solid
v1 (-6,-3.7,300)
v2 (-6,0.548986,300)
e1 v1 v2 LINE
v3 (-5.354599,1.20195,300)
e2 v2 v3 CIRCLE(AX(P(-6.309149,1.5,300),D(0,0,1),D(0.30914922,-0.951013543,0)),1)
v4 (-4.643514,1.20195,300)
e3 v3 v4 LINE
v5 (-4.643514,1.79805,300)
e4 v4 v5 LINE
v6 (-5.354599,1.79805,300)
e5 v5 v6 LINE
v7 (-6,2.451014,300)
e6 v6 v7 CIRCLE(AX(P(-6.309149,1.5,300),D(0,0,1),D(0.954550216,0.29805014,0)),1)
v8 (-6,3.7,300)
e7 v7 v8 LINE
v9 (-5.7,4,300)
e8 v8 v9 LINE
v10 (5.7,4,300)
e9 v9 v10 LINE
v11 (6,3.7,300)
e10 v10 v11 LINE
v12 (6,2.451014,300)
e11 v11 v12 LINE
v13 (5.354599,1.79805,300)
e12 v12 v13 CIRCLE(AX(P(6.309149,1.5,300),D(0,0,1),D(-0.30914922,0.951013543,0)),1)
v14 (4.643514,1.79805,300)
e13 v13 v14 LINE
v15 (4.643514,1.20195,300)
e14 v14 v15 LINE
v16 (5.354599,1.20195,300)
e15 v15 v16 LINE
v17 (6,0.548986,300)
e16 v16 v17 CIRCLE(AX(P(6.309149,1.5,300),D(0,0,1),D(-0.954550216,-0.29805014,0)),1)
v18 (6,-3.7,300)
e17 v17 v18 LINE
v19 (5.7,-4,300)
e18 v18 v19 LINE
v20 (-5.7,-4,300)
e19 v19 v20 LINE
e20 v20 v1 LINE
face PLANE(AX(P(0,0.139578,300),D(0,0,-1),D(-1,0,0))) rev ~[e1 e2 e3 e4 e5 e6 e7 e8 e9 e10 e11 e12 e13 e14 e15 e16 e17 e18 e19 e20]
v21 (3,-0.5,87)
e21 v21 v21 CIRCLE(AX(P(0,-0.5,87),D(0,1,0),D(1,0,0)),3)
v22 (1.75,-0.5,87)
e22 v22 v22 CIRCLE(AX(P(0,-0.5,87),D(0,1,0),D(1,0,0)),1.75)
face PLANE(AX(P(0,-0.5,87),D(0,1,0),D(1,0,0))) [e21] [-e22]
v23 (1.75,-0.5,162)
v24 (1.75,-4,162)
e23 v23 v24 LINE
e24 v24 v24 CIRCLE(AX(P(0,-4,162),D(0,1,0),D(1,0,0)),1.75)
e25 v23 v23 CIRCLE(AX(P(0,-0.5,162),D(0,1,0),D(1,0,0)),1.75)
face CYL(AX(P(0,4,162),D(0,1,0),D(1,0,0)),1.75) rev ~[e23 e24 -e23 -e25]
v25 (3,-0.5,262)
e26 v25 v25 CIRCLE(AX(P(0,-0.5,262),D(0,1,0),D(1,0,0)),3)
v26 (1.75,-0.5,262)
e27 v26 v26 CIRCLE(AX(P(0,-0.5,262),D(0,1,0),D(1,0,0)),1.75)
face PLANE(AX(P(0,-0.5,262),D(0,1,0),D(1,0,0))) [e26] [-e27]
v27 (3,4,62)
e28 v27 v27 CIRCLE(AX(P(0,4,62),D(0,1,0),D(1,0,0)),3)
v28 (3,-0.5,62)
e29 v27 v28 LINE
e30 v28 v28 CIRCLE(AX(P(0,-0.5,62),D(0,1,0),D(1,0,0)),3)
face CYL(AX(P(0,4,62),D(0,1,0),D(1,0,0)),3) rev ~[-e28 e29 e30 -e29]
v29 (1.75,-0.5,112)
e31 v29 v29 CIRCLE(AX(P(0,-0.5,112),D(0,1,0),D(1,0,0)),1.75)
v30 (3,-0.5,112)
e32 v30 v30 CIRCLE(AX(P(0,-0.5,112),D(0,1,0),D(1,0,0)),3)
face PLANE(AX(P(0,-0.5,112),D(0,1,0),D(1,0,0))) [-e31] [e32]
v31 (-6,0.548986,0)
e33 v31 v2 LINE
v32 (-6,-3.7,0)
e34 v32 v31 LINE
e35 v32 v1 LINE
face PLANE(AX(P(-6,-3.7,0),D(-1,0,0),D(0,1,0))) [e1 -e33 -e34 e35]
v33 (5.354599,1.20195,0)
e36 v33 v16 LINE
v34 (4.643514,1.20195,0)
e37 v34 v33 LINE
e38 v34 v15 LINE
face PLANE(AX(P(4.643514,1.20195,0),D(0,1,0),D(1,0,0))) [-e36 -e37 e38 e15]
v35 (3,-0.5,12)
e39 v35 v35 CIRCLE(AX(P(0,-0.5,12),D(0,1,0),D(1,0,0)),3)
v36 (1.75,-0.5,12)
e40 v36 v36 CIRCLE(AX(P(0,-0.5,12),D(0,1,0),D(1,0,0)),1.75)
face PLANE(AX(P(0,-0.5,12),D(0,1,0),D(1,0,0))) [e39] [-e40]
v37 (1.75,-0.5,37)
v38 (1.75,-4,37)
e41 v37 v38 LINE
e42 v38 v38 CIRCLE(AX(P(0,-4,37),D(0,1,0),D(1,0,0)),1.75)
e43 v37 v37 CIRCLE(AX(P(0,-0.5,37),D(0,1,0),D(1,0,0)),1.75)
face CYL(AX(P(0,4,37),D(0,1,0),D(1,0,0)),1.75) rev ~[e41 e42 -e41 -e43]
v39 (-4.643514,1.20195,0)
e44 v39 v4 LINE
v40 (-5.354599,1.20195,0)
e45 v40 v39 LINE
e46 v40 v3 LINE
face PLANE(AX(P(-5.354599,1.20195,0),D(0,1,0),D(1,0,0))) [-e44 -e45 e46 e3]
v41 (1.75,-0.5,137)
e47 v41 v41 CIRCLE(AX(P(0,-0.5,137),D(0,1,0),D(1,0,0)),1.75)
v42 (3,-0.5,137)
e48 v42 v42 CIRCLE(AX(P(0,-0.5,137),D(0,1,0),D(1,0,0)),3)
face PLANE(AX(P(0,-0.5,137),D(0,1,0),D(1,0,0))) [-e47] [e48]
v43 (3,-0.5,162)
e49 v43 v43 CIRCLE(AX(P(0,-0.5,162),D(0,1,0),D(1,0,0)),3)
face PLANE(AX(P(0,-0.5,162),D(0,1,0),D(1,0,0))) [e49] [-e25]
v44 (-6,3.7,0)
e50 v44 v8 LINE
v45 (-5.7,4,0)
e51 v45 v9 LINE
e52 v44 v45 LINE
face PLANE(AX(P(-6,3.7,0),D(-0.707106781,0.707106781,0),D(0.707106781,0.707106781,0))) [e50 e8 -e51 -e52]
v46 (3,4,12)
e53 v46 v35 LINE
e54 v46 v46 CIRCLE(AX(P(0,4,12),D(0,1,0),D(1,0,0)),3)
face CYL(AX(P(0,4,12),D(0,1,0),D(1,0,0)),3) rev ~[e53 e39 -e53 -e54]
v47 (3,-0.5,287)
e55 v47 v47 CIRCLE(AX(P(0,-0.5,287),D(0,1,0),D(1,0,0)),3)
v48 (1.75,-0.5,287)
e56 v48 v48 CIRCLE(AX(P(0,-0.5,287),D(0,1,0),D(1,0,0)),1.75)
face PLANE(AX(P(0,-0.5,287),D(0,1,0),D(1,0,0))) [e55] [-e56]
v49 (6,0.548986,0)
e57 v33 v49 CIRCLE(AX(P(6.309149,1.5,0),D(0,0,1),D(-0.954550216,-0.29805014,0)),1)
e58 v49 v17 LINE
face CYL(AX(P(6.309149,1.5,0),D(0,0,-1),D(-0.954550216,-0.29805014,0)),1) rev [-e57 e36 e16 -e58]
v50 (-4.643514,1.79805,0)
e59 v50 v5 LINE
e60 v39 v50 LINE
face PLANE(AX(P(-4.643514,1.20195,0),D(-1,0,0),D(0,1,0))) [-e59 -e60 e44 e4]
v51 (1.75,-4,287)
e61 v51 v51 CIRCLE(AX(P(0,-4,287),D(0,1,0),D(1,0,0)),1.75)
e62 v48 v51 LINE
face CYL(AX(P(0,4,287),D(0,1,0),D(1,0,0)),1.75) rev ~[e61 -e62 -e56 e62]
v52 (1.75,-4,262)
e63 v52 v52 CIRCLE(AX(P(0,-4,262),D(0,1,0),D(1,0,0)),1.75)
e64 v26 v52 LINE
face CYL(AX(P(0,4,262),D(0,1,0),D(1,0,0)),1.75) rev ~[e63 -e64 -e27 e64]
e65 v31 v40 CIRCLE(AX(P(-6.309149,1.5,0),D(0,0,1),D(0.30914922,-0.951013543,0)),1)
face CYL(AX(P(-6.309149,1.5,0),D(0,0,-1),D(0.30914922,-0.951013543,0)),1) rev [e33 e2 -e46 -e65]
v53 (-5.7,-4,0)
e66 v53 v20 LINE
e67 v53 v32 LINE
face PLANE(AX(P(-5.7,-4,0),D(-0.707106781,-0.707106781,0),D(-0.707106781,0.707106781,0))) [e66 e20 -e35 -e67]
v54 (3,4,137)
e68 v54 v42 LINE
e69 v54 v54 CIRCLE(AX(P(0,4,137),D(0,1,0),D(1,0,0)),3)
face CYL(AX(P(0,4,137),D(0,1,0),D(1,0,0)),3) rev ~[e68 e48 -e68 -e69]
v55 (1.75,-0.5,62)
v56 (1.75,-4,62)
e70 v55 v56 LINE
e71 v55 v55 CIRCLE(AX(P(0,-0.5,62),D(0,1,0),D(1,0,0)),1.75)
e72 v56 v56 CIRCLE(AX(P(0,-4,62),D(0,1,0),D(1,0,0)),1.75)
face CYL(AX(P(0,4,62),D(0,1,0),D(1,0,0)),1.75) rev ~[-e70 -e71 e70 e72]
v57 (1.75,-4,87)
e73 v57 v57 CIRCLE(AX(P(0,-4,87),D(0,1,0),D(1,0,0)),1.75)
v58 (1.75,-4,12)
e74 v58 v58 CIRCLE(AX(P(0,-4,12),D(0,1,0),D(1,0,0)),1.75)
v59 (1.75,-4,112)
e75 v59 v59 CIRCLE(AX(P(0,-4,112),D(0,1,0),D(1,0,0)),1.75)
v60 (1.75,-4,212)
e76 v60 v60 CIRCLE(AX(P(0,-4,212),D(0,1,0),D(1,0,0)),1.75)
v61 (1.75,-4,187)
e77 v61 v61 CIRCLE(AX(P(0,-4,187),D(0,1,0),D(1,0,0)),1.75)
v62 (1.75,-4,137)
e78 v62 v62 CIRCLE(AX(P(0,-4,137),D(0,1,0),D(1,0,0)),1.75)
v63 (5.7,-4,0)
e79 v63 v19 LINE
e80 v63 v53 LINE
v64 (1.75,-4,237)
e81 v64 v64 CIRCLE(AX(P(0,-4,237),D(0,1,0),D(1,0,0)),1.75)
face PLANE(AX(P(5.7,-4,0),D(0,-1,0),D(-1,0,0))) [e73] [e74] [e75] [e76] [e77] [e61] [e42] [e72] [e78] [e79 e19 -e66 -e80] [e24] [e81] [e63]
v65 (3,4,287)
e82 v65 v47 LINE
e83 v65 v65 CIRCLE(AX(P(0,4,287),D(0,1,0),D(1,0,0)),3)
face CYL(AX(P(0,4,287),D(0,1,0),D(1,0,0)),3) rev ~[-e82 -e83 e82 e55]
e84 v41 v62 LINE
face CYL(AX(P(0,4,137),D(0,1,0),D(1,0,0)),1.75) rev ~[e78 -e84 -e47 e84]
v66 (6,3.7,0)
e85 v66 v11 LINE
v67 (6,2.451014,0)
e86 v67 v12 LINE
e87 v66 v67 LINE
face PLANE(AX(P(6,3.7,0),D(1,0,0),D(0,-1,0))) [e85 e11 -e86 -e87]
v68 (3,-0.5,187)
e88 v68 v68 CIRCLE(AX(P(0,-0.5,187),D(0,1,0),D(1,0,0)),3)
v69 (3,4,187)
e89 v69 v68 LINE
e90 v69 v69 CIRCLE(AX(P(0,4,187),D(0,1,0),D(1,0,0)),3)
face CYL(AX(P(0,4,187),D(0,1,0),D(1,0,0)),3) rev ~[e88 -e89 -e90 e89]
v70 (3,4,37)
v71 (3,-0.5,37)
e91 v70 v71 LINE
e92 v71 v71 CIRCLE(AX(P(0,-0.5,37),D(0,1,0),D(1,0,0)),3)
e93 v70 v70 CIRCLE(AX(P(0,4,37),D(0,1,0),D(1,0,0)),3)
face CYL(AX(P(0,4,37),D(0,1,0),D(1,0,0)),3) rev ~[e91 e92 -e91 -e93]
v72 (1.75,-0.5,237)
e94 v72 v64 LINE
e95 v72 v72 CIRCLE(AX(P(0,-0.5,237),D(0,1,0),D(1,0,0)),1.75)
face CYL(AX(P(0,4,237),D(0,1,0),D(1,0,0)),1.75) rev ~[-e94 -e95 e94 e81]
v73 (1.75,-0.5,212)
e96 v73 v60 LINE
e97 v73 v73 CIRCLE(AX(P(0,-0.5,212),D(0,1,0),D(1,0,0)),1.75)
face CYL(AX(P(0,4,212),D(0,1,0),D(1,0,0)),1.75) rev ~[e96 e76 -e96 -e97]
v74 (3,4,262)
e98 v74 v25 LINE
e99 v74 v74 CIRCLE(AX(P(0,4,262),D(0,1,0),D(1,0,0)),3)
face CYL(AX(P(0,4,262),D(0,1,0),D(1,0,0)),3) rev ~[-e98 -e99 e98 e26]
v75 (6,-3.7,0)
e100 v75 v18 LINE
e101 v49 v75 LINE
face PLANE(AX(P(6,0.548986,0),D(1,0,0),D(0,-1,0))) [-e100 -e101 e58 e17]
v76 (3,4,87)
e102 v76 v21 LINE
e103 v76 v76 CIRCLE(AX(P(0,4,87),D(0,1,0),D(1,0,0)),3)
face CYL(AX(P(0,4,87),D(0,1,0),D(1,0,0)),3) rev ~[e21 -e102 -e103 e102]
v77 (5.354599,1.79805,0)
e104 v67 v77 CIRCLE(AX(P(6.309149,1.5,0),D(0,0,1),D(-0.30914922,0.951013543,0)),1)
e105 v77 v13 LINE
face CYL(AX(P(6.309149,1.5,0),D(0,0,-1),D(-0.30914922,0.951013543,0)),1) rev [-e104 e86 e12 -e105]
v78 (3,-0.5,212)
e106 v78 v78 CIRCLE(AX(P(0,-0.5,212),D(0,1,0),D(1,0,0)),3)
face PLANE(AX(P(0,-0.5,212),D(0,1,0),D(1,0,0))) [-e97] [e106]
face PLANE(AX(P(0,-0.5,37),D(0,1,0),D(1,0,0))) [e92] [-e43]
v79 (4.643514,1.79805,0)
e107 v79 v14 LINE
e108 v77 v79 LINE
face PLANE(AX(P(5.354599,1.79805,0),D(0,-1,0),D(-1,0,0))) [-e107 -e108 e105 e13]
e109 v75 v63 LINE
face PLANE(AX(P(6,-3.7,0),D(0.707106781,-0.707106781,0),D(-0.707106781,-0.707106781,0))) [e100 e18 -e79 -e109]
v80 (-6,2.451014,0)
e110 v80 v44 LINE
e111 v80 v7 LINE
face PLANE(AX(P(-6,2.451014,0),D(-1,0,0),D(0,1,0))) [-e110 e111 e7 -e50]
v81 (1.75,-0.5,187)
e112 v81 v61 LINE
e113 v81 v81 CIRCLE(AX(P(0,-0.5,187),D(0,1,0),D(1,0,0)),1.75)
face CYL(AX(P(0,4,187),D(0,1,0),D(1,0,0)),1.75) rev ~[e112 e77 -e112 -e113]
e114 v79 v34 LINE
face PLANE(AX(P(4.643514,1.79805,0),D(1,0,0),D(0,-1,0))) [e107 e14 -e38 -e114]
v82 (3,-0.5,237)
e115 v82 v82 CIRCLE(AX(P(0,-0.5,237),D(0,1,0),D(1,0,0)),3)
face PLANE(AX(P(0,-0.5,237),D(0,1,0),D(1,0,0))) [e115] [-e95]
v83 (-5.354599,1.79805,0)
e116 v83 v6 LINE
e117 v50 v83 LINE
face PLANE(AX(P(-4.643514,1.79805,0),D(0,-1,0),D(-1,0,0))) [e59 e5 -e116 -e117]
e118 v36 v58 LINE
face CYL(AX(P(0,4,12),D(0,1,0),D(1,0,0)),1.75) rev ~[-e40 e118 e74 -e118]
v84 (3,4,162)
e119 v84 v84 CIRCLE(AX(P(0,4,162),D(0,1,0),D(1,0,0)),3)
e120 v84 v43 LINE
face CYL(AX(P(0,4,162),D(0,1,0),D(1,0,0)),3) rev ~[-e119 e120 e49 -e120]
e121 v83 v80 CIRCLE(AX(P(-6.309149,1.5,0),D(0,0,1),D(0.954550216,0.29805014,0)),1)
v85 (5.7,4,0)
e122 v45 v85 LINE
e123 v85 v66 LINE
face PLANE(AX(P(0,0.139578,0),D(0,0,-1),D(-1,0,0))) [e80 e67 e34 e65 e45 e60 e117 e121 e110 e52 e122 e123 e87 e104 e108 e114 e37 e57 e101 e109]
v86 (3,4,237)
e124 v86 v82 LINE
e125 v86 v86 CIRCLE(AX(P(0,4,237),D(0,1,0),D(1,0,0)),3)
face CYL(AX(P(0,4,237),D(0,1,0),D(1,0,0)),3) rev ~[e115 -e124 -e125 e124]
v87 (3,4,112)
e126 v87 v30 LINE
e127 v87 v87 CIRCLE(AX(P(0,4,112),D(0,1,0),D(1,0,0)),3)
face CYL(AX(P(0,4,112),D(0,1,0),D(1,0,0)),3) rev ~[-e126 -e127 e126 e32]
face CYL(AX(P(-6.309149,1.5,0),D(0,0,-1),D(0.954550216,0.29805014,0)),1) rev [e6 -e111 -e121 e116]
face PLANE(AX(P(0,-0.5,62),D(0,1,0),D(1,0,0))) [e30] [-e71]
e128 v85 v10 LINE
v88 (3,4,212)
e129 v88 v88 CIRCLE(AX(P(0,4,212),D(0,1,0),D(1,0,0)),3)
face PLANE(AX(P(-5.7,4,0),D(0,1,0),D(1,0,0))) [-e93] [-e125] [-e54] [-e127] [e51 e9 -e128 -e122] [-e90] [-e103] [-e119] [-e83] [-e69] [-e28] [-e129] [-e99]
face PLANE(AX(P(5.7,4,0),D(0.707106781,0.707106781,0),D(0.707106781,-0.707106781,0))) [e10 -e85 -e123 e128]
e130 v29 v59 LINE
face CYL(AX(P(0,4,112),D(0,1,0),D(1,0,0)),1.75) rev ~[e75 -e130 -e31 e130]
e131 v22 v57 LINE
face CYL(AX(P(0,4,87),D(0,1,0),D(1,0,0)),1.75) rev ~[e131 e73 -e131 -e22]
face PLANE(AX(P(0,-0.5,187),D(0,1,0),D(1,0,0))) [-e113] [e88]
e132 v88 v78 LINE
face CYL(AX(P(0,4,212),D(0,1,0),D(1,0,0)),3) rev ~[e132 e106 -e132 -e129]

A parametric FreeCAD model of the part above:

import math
import FreeCAD as App
import Part
import Sketcher

doc = App.newDocument("Part")
body = doc.addObject("PartDesign::Body", "Body")

# Sketch on XY plane
sketch1 = body.newObject("Sketcher::SketchObject", "Sketch")
sketch1.AttachmentSupport = (doc.getObject("XY_Plane"), [""])
sketch1.MapMode = "FlatFace"
sketch1.addGeometry(Part.LineSegment(App.Vector(-5.7, 4, 0), App.Vector(-6, 3.7, 0)), False)
sketch1.addGeometry(Part.LineSegment(App.Vector(-6, 3.7, 0), App.Vector(-6, 2.45, 0)), False)
sketch1.addGeometry(Part.ArcOfCircle(Part.Circle(App.Vector(-6.31, 1.5, 0), App.Vector(0, 0, 1), 1), math.radians(17), math.radians(72)), False)
sketch1.addGeometry(Part.LineSegment(App.Vector(-5.35, 1.8, 0), App.Vector(-4.64, 1.8, 0)), False)
sketch1.addGeometry(Part.LineSegment(App.Vector(-4.64, 1.8, 0), App.Vector(-4.64, 1.2, 0)), False)
sketch1.addGeometry(Part.LineSegment(App.Vector(-4.64, 1.2, 0), App.Vector(-5.35, 1.2, 0)), False)
sketch1.addGeometry(Part.ArcOfCircle(Part.Circle(App.Vector(-6.31, 1.5, 0), App.Vector(0, 0, 1), 1), math.radians(-72), math.radians(-17)), False)
sketch1.addGeometry(Part.LineSegment(App.Vector(-6, 0.55, 0), App.Vector(-6, -3.7, 0)), False)
sketch1.addGeometry(Part.LineSegment(App.Vector(-6, -3.7, 0), App.Vector(-5.7, -4, 0)), False)
sketch1.addGeometry(Part.LineSegment(App.Vector(-5.7, -4, 0), App.Vector(5.7, -4, 0)), False)
sketch1.addGeometry(Part.LineSegment(App.Vector(5.7, -4, 0), App.Vector(6, -3.7, 0)), False)
sketch1.addGeometry(Part.LineSegment(App.Vector(6, -3.7, 0), App.Vector(6, 0.55, 0)), False)
sketch1.addGeometry(Part.ArcOfCircle(Part.Circle(App.Vector(6.31, 1.5, 0), App.Vector(0, 0, 1), 1), math.radians(-163), math.radians(-108)), False)
sketch1.addGeometry(Part.LineSegment(App.Vector(5.35, 1.2, 0), App.Vector(4.64, 1.2, 0)), False)
sketch1.addGeometry(Part.LineSegment(App.Vector(4.64, 1.2, 0), App.Vector(4.64, 1.8, 0)), False)
sketch1.addGeometry(Part.LineSegment(App.Vector(4.64, 1.8, 0), App.Vector(5.35, 1.8, 0)), False)
sketch1.addGeometry(Part.ArcOfCircle(Part.Circle(App.Vector(6.31, 1.5, 0), App.Vector(0, 0, 1), 1), math.radians(108), math.radians(163)), False)
sketch1.addGeometry(Part.LineSegment(App.Vector(6, 2.45, 0), App.Vector(6, 3.7, 0)), False)
sketch1.addGeometry(Part.LineSegment(App.Vector(6, 3.7, 0), App.Vector(5.7, 4, 0)), False)
sketch1.addGeometry(Part.LineSegment(App.Vector(5.7, 4, 0), App.Vector(-5.7, 4, 0)), False)
sketch1.addConstraint(Sketcher.Constraint("Coincident", 0, 2, 1, 1))
sketch1.addConstraint(Sketcher.Constraint("Coincident", 1, 2, 2, 2))
sketch1.addConstraint(Sketcher.Constraint("Coincident", 2, 1, 3, 1))
sketch1.addConstraint(Sketcher.Constraint("Coincident", 3, 2, 4, 1))
sketch1.addConstraint(Sketcher.Constraint("Coincident", 4, 2, 5, 1))
sketch1.addConstraint(Sketcher.Constraint("Coincident", 5, 2, 6, 2))
sketch1.addConstraint(Sketcher.Constraint("Coincident", 6, 1, 7, 1))
sketch1.addConstraint(Sketcher.Constraint("Coincident", 7, 2, 8, 1))
sketch1.addConstraint(Sketcher.Constraint("Coincident", 8, 2, 9, 1))
sketch1.addConstraint(Sketcher.Constraint("Coincident", 9, 2, 10, 1))
sketch1.addConstraint(Sketcher.Constraint("Coincident", 10, 2, 11, 1))
sketch1.addConstraint(Sketcher.Constraint("Coincident", 11, 2, 12, 2))
sketch1.addConstraint(Sketcher.Constraint("Coincident", 12, 1, 13, 1))
sketch1.addConstraint(Sketcher.Constraint("Coincident", 13, 2, 14, 1))
sketch1.addConstraint(Sketcher.Constraint("Coincident", 14, 2, 15, 1))
sketch1.addConstraint(Sketcher.Constraint("Coincident", 15, 2, 16, 2))
sketch1.addConstraint(Sketcher.Constraint("Coincident", 16, 1, 17, 1))
sketch1.addConstraint(Sketcher.Constraint("Coincident", 17, 2, 18, 1))
sketch1.addConstraint(Sketcher.Constraint("Coincident", 18, 2, 19, 1))
sketch1.addConstraint(Sketcher.Constraint("Coincident", 19, 2, 0, 1))
sketch1.addConstraint(Sketcher.Constraint("Vertical", 1))
sketch1.addConstraint(Sketcher.Constraint("Horizontal", 3))
sketch1.addConstraint(Sketcher.Constraint("Vertical", 4))
sketch1.addConstraint(Sketcher.Constraint("Horizontal", 5))
sketch1.addConstraint(Sketcher.Constraint("Vertical", 7))
sketch1.addConstraint(Sketcher.Constraint("Horizontal", 9))
sketch1.addConstraint(Sketcher.Constraint("Vertical", 11))
sketch1.addConstraint(Sketcher.Constraint("Horizontal", 13))
sketch1.addConstraint(Sketcher.Constraint("Vertical", 14))
sketch1.addConstraint(Sketcher.Constraint("Horizontal", 15))
sketch1.addConstraint(Sketcher.Constraint("Vertical", 17))
sketch1.addConstraint(Sketcher.Constraint("Horizontal", 19))
sketch1.addConstraint(Sketcher.Constraint("Coincident", 6, 3, 2, 3))
sketch1.addConstraint(Sketcher.Constraint("Coincident", 16, 3, 12, 3))
sketch1.addConstraint(Sketcher.Constraint("Equal", 2, 6))
sketch1.addConstraint(Sketcher.Constraint("Equal", 6, 12))
sketch1.addConstraint(Sketcher.Constraint("Equal", 12, 16))
sketch1.addConstraint(Sketcher.Constraint("Symmetric", 0, 2, 10, 2, -1, 1))
sketch1.addConstraint(Sketcher.Constraint("Symmetric", 7, 2, 17, 2, -1, 1))
sketch1.addConstraint(Sketcher.Constraint("Symmetric", 8, 2, 18, 2, -1, 1))
sketch1.addConstraint(Sketcher.Constraint("Symmetric", 2, 3, 12, 3, -2))
sketch1.addConstraint(Sketcher.Constraint("Symmetric", 7, 2, 10, 2, -2))
sketch1.addConstraint(Sketcher.Constraint("Symmetric", 4, 2, 13, 2, -2))
sketch1.addConstraint(Sketcher.Constraint("Perpendicular", 0, 8))
sketch1.addConstraint(Sketcher.Constraint("Perpendicular", 8, 10))
sketch1.addConstraint(Sketcher.Constraint("Horizontal", 3, 2, 14, 2))
sketch1.addConstraint(Sketcher.Constraint("Vertical", 2, 1, 5, 2))
sketch1.addConstraint(Sketcher.Constraint("Vertical", 9, 2, 18, 2))
sketch1.addConstraint(Sketcher.Constraint("Radius", 2, 1.0))
sketch1.addConstraint(Sketcher.Constraint("DistanceX", 9, 1, 9, 2, 11.4))
sketch1.addConstraint(Sketcher.Constraint("DistanceX", 0, 2, -1, 1, 6.0))
sketch1.addConstraint(Sketcher.Constraint("DistanceY", 8, 2, -1, 1, 4.0))
sketch1.addConstraint(Sketcher.Constraint("DistanceY", -1, 1, 2, 3, 1.5))
sketch1.addConstraint(Sketcher.Constraint("DistanceY", 4, 2, 4, 1, 0.5961))
sketch1.addConstraint(Sketcher.Constraint("DistanceX", 2, 1, -1, 1, 5.354599))
sketch1.addConstraint(Sketcher.Constraint("DistanceX", 3, 1, 3, 2, 0.711085))
pad1 = body.newObject("PartDesign::Pad", "Pad")
pad1.Profile = sketch1
pad1.Length = 300

# Sketch on XZ plane
sketch2 = body.newObject("Sketcher::SketchObject", "Sketch001")
sketch2.AttachmentSupport = (doc.getObject("XZ_Plane"), [""])
sketch2.MapMode = "FlatFace"
sketch2.AttachmentOffset = App.Placement(App.Vector(0, 0, -4), App.Rotation())
sketch2.addGeometry(Part.Circle(App.Vector(0, 12, 0), App.Vector(0, 0, 1), 3), False)
sketch2.addGeometry(Part.Circle(App.Vector(0, 12, 0), App.Vector(0, 0, 1), 1.8), False)
sketch2.addConstraint(Sketcher.Constraint("Coincident", 1, 3, 0, 3))
sketch2.addConstraint(Sketcher.Constraint("PointOnObject", 0, 3, -2))
sketch2.addConstraint(Sketcher.Constraint("Diameter", 0, 6.0))
sketch2.addConstraint(Sketcher.Constraint("Diameter", 1, 3.5))
sketch2.addConstraint(Sketcher.Constraint("DistanceY", -1, 1, 0, 3, 12.0))
pocket1 = body.newObject("PartDesign::Pocket", "Pocket")
pocket1.Profile = sketch2
pocket1.Length = 4.5
pocket1.Reversed = True

# Sketch on XZ plane
sketch3 = body.newObject("Sketcher::SketchObject", "Sketch002")
sketch3.AttachmentSupport = (doc.getObject("XZ_Plane"), [""])
sketch3.MapMode = "FlatFace"
sketch3.AttachmentOffset = App.Placement(App.Vector(0, 0, -4), App.Rotation())
sketch3.addGeometry(Part.Circle(App.Vector(0, 12, 0), App.Vector(0, 0, 1), 1.8), False)
sketch3.addConstraint(Sketcher.Constraint("PointOnObject", 0, 3, -2))
sketch3.addConstraint(Sketcher.Constraint("Diameter", 0, 3.5))
sketch3.addConstraint(Sketcher.Constraint("DistanceY", -1, 1, 0, 3, 12.0))
pocket2 = body.newObject("PartDesign::Pocket", "Pocket001")
pocket2.Profile = sketch3
pocket2.Type = "ThroughAll"
pocket2.Reversed = True
doc.recompute()

linearpattern = body.newObject("PartDesign::LinearPattern", "LinearPattern")
linearpattern.Originals = [pocket1, pocket2]
linearpattern.Direction = (doc.getObject("Z_Axis"), [""])
linearpattern.Mode = "offset"
linearpattern.Offset = 25
linearpattern.Occurrences = 16
body.Tip = linearpattern

doc.recompute()
